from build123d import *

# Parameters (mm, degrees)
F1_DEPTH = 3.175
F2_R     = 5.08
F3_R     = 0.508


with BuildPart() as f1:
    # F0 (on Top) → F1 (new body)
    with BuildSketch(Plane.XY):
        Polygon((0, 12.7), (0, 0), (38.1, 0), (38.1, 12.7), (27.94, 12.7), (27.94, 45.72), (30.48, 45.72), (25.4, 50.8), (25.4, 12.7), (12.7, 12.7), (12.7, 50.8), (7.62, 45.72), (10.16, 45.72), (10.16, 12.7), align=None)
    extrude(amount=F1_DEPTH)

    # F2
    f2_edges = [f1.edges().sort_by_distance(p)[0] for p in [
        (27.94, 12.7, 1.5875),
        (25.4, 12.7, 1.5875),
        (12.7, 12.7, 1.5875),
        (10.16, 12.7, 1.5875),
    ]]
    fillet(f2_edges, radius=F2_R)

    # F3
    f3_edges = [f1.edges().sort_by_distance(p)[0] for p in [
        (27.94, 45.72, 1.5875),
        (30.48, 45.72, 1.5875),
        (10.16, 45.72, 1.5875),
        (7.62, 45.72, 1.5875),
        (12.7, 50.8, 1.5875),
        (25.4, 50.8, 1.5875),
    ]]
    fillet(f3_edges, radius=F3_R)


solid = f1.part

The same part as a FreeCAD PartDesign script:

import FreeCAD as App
import Part
import Sketcher

V = App.Vector
Q = App.Units.Quantity


def edges_at(feature, points):
    """Names of the edges that pass closest to the given points."""
    edges = feature.Shape.Edges
    near = lambda p: min(range(len(edges)), key=lambda i: edges[i].distToShape(Part.Vertex(*p))[0])
    return sorted({f"Edge{near(p) + 1}" for p in points})

doc = App.newDocument("Part")
body = doc.addObject("PartDesign::Body", "Body")

# Sketch on XY plane
sketch1 = doc.addObject("Sketcher::SketchObject", "Sketch")
body.addObject(sketch1)
sketch1.AttachmentSupport = (doc.XY_Plane, [""])
sketch1.MapMode = "FlatFace"
sketch1.addGeometry([
    Part.LineSegment(V(0, 12.7, 0), V(0, 0, 0)),  # 0
    Part.LineSegment(V(0, 0, 0), V(38.1, 0, 0)),  # 1
    Part.LineSegment(V(38.1, 0, 0), V(38.1, 12.7, 0)),  # 2
    Part.LineSegment(V(38.1, 12.7, 0), V(27.9, 12.7, 0)),  # 3
    Part.LineSegment(V(27.9, 12.7, 0), V(27.9, 45.7, 0)),  # 4
    Part.LineSegment(V(27.9, 45.7, 0), V(30.5, 45.7, 0)),  # 5
    Part.LineSegment(V(30.5, 45.7, 0), V(25.4, 50.8, 0)),  # 6
    Part.LineSegment(V(25.4, 50.8, 0), V(25.4, 12.7, 0)),  # 7
    Part.LineSegment(V(25.4, 12.7, 0), V(12.7, 12.7, 0)),  # 8
    Part.LineSegment(V(12.7, 12.7, 0), V(12.7, 50.8, 0)),  # 9
    Part.LineSegment(V(12.7, 50.8, 0), V(7.6, 45.7, 0)),  # 10
    Part.LineSegment(V(7.6, 45.7, 0), V(10.2, 45.7, 0)),  # 11
    Part.LineSegment(V(10.2, 45.7, 0), V(10.2, 12.7, 0)),  # 12
    Part.LineSegment(V(10.2, 12.7, 0), V(0, 12.7, 0)),  # 13
], False)
sketch1.addConstraint([
    Sketcher.Constraint("Coincident", 0, 2, 1, 1),
    Sketcher.Constraint("Coincident", 1, 2, 2, 1),
    Sketcher.Constraint("Coincident", 2, 2, 3, 1),
    Sketcher.Constraint("Coincident", 3, 2, 4, 1),
    Sketcher.Constraint("Coincident", 4, 2, 5, 1),
    Sketcher.Constraint("Coincident", 5, 2, 6, 1),
    Sketcher.Constraint("Coincident", 6, 2, 7, 1),
    Sketcher.Constraint("Coincident", 7, 2, 8, 1),
    Sketcher.Constraint("Coincident", 8, 2, 9, 1),
    Sketcher.Constraint("Coincident", 9, 2, 10, 1),
    Sketcher.Constraint("Coincident", 10, 2, 11, 1),
    Sketcher.Constraint("Coincident", 11, 2, 12, 1),
    Sketcher.Constraint("Coincident", 12, 2, 13, 1),
    Sketcher.Constraint("Coincident", 13, 2, 0, 1),
    Sketcher.Constraint("Vertical", 0),
    Sketcher.Constraint("Horizontal", 1),
    Sketcher.Constraint("Vertical", 2),
    Sketcher.Constraint("Horizontal", 3),
    Sketcher.Constraint("Vertical", 4),
    Sketcher.Constraint("Horizontal", 5),
    Sketcher.Constraint("Vertical", 7),
    Sketcher.Constraint("Horizontal", 8),
    Sketcher.Constraint("Vertical", 9),
    Sketcher.Constraint("Horizontal", 11),
    Sketcher.Constraint("Vertical", 12),
    Sketcher.Constraint("Horizontal", 13),
    Sketcher.Constraint("Coincident", 0, 2, -1, 1),
    Sketcher.Constraint("Perpendicular", 6, 10),
    Sketcher.Constraint("Horizontal", 3, 2, 7, 2),
    Sketcher.Constraint("Horizontal", 6, 2, 9, 2),
    Sketcher.Constraint("Horizontal", 5, 2, 10, 2),
    Sketcher.Constraint("Horizontal", 8, 2, 12, 2),
    Sketcher.Constraint("Equal", 5, 11),
    Sketcher.Constraint("Equal", 3, 13),
    Sketcher.Constraint("Equal", 8, 0),
    Sketcher.Constraint("Equal", 1, 7),
    Sketcher.Constraint("Equal", 6, 10),
    Sketcher.Constraint("DistanceX", 1, 1, 1, 2, Q("1.5 in")),
    Sketcher.Constraint("DistanceX", 3, 2, 3, 1, Q("0.4 in")),
    Sketcher.Constraint("DistanceX", 5, 1, 5, 2, Q("0.1 in")),
    Sketcher.Constraint("DistanceX", 8, 2, 8, 1, Q("0.5 in")),
])
pad1 = doc.addObject("PartDesign::Pad", "Pad")
body.addObject(pad1)
pad1.Profile = sketch1
pad1.Length = Q("0.125 in")
doc.recompute()

fillet = doc.addObject("PartDesign::Fillet", "Fillet")
body.addObject(fillet)
fillet.Base = (pad1, edges_at(pad1, [
    (27.94, 12.7, 1.587),
    (25.4, 12.7, 1.587),
    (12.7, 12.7, 1.587),
    (10.16, 12.7, 1.587),
]))
fillet.Radius = Q("0.2 in")
doc.recompute()

fillet2 = doc.addObject("PartDesign::Fillet", "Fillet001")
body.addObject(fillet2)
fillet2.Base = (fillet, edges_at(fillet, [
    (27.94, 45.72, 1.587),
    (30.48, 45.72, 1.587),
    (10.16, 45.72, 1.587),
    (7.62, 45.72, 1.587),
    (12.7, 50.8, 1.587),
    (25.4, 50.8, 1.587),
]))
fillet2.Radius = Q("0.02 in")

doc.recompute()
